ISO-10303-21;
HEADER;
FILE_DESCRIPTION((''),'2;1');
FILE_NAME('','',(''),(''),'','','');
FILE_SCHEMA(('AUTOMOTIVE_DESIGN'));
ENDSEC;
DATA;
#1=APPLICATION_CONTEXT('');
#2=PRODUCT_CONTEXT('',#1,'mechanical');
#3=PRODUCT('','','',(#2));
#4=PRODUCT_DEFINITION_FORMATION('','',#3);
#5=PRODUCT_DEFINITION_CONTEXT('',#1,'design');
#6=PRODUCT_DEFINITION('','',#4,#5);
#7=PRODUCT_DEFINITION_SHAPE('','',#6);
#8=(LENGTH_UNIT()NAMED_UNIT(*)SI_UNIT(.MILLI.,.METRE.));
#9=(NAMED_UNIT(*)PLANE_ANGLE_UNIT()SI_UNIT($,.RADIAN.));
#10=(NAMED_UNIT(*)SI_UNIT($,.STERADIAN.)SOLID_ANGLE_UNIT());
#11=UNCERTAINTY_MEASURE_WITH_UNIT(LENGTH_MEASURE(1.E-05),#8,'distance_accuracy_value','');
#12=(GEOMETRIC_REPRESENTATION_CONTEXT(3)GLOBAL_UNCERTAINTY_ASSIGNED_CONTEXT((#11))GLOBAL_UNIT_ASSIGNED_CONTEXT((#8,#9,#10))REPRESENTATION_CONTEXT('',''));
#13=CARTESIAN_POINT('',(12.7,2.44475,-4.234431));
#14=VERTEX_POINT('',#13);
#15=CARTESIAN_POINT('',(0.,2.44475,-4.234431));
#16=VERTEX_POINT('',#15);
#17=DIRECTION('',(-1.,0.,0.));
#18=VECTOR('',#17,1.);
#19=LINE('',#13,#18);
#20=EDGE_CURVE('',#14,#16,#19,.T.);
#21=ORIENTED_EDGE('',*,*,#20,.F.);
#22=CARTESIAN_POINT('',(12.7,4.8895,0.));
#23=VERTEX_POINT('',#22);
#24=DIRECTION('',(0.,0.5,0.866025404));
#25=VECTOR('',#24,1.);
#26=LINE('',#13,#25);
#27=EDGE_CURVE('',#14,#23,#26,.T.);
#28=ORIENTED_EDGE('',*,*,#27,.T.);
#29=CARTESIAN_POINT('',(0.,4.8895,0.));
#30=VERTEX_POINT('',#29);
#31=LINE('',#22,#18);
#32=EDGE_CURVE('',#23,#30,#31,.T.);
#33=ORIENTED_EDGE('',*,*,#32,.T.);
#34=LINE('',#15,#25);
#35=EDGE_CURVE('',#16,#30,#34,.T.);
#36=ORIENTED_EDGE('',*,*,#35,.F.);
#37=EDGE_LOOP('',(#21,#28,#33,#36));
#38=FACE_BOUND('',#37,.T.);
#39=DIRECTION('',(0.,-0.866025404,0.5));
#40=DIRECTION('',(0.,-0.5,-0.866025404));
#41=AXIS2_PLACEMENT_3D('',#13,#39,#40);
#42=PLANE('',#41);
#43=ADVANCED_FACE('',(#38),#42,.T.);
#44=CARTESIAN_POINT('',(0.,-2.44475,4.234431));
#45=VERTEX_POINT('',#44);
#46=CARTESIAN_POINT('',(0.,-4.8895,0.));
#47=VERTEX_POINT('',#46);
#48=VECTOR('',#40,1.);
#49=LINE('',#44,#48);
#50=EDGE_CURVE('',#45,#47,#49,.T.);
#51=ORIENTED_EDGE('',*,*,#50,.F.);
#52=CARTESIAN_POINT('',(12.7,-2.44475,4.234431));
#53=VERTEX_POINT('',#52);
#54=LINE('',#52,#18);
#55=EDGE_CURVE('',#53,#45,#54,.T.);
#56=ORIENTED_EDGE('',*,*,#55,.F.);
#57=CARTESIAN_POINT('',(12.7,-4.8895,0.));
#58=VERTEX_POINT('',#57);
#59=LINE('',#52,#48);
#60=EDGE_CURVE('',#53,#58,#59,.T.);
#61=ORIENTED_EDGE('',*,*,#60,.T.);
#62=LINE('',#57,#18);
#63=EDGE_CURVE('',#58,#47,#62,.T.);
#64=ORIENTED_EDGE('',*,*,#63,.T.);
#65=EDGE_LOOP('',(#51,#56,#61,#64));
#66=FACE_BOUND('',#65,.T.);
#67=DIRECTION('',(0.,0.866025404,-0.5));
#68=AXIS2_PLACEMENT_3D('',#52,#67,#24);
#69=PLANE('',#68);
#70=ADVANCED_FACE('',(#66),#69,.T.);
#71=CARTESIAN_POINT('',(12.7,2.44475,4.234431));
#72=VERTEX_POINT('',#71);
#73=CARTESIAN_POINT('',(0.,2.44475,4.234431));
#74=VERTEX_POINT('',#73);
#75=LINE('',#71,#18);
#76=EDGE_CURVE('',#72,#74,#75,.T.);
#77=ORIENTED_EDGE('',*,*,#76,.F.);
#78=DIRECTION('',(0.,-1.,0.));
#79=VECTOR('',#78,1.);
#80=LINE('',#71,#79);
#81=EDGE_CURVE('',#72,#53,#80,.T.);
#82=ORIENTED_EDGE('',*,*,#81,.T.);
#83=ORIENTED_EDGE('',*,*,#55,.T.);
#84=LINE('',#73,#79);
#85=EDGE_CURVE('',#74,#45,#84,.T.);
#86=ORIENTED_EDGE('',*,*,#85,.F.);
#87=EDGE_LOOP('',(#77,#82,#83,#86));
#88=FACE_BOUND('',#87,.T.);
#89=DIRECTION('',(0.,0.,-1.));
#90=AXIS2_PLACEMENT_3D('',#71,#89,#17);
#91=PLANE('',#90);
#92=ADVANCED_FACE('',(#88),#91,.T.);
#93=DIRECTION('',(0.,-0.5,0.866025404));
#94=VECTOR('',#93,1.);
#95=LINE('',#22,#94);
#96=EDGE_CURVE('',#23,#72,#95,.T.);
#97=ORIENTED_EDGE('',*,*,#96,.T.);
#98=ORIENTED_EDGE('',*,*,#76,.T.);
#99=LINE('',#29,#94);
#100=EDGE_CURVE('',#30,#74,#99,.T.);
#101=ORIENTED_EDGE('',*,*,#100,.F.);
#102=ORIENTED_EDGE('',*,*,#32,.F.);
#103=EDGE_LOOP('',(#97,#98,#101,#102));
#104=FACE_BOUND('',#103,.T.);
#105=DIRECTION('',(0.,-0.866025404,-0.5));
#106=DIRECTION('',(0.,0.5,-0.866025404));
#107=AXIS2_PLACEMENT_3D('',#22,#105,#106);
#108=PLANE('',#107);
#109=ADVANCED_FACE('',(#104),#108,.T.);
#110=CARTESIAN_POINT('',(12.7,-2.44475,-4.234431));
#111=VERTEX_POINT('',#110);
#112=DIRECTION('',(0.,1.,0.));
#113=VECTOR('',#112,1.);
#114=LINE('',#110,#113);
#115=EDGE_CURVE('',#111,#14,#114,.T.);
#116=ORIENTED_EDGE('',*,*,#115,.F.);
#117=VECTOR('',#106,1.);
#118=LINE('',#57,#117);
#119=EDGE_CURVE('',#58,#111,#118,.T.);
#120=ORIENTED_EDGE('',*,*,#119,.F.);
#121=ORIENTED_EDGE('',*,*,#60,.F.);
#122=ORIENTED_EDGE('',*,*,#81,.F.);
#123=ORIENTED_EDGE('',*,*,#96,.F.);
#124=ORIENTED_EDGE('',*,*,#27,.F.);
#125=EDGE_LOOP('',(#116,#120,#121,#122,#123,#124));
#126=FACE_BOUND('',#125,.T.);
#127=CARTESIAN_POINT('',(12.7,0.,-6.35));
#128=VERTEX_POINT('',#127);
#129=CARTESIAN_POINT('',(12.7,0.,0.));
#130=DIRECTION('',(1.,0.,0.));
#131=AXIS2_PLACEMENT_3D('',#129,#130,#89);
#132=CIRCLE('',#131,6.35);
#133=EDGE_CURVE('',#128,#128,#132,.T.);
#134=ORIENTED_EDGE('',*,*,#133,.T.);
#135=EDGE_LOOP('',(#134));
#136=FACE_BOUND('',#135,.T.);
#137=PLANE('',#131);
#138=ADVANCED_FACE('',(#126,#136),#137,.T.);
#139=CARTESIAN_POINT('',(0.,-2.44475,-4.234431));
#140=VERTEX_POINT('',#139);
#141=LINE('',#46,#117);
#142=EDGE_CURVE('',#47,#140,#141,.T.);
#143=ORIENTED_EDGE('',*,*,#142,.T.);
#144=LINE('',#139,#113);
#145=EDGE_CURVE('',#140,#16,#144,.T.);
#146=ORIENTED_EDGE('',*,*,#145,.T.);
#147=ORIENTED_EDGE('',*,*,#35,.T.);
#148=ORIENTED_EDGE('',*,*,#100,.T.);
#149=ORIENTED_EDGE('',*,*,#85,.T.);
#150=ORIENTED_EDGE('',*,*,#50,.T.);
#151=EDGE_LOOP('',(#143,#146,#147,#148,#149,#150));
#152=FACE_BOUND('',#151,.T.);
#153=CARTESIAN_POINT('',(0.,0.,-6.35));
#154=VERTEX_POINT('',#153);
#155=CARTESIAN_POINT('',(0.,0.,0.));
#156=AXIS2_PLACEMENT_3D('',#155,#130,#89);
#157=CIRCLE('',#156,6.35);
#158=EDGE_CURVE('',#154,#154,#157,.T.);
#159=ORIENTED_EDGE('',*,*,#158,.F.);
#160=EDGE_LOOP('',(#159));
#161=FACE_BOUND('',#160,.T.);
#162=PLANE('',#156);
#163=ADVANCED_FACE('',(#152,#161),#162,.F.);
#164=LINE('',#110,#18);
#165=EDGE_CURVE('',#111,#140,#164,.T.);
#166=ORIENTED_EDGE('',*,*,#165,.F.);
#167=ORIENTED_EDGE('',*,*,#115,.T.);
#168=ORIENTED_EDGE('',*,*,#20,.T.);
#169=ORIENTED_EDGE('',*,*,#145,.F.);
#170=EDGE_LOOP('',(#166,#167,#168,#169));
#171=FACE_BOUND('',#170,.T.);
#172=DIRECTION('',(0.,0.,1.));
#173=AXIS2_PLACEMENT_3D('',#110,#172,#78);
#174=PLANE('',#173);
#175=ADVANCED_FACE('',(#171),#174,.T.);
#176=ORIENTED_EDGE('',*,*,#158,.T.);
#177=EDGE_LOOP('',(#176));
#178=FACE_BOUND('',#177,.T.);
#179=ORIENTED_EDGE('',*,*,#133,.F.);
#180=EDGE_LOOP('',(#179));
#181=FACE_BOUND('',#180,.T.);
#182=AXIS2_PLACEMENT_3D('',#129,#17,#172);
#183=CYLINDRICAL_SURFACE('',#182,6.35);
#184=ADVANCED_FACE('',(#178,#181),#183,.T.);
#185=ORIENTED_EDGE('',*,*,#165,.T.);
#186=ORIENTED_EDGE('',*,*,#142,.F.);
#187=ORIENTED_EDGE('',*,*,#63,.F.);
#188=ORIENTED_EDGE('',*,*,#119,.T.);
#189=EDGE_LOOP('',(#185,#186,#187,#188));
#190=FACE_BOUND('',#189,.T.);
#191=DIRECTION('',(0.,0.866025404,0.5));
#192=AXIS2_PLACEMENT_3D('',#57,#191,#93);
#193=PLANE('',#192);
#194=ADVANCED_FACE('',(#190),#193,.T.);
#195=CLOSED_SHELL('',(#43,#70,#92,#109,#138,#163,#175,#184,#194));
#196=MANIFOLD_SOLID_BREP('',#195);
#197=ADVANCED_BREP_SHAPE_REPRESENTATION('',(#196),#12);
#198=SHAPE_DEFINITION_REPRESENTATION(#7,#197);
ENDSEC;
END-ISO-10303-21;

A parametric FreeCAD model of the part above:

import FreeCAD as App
import Part
import Sketcher
from FreeCAD import Vector
Q = App.Units.Quantity


def add_polygon(sketch, points):
    """Adds a closed chain of lines whose ends are joined by coincident constraints."""
    first, n = sketch.GeometryCount, len(points)
    for a, b in zip(points, points[1:] + points[:1]):
        sketch.addGeometry(Part.LineSegment(App.Vector(*a, 0), App.Vector(*b, 0)), False)
    for i in range(n):
        sketch.addConstraint(Sketcher.Constraint("Coincident", first + i, 2, first + (i + 1) % n, 1))

doc = App.newDocument("Part")
body = doc.addObject("PartDesign::Body", "Body")

# Sketch on YZ plane
sketch1 = body.newObject("Sketcher::SketchObject", "Sketch")
sketch1.AttachmentSupport = (doc.getObject("YZ_Plane"), [""])
sketch1.MapMode = "FlatFace"
sketch1.addGeometry(Part.Circle(Vector(0, 0, 0), Vector(0, 0, 1), 6.35), False)  # 0
add_polygon(sketch1, [(-2.44475, -4.234431), (-4.8895, 0), (-2.44475, 4.234431), (2.44475, 4.234431), (4.8895, 0), (2.44475, -4.234431)])  # lines 1-6
sketch1.addConstraint([
    Sketcher.Constraint("Horizontal", 3),
    Sketcher.Constraint("Horizontal", 6),
    Sketcher.Constraint("Coincident", 0, 3, -1, 1),
    Sketcher.Constraint("Symmetric", 1, 2, 4, 2, -1, 1),
    Sketcher.Constraint("Symmetric", 2, 2, 5, 2, -1, 1),
    Sketcher.Constraint("PointOnObject", 1, 2, -1),
    Sketcher.Constraint("Parallel", 1, 4),
    Sketcher.Constraint("Vertical", 3, 2, 5, 2),
    Sketcher.Constraint("Diameter", 0, Q("0.5 in")),
    Sketcher.Constraint("Angle", 1, Q("120 deg")),
    Sketcher.Constraint("DistanceX", 3, 1, 3, 2, Q("0.1925 in")),
    Sketcher.Constraint("DistanceX", 1, 2, 4, 2, Q("0.385 in")),
])
pad1 = body.newObject("PartDesign::Pad", "Pad")
pad1.Profile = sketch1
pad1.Length = Q("0.5 in")

doc.recompute()
